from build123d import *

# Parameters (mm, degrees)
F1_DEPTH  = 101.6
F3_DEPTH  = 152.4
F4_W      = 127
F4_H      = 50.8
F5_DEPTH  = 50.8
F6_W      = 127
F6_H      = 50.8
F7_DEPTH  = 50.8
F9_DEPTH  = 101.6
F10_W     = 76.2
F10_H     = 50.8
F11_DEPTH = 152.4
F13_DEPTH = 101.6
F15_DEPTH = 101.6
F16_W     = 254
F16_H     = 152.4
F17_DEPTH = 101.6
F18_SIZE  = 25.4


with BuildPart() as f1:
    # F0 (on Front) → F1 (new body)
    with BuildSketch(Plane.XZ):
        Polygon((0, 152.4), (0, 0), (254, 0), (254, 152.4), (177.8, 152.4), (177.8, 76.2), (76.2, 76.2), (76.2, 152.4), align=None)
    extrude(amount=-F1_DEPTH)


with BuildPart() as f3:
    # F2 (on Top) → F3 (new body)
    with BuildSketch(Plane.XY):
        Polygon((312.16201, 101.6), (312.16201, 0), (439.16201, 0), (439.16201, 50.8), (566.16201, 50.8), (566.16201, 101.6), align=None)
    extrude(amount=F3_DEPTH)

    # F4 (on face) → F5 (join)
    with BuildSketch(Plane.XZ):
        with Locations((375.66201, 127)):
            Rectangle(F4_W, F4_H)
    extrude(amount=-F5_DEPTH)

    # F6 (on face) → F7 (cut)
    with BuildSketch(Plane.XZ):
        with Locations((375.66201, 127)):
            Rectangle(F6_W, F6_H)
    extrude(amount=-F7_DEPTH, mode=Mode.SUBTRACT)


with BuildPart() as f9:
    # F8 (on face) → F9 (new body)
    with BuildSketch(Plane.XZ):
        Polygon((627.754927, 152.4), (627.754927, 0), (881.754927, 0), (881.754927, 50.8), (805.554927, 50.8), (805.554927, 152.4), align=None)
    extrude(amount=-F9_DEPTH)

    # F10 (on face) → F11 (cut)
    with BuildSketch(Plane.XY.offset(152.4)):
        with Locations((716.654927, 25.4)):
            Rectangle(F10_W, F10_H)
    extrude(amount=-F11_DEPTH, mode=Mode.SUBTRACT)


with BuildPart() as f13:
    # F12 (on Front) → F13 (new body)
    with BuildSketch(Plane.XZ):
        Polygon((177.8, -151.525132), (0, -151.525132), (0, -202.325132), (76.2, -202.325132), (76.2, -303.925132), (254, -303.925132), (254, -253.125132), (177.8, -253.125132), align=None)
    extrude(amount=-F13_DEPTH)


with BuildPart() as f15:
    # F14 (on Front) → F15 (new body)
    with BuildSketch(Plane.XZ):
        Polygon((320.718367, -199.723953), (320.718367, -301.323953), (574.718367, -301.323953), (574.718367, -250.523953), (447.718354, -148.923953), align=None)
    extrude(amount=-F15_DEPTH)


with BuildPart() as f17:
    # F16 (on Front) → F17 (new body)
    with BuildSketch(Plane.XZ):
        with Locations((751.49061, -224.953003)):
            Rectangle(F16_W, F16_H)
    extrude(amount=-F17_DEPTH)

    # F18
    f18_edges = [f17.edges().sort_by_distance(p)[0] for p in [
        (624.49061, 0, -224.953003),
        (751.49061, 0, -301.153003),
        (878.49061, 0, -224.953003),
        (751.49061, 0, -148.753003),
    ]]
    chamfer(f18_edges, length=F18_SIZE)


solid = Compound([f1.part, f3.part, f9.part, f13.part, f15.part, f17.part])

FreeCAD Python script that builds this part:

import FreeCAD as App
import Part
import Sketcher

V = App.Vector
Q = App.Units.Quantity


def edges_at(feature, points):
    """Names of the edges that pass closest to the given points."""
    edges = feature.Shape.Edges
    near = lambda p: min(range(len(edges)), key=lambda i: edges[i].distToShape(Part.Vertex(*p))[0])
    return sorted({f"Edge{near(p) + 1}" for p in points})

doc = App.newDocument("Part")
body = doc.addObject("PartDesign::Body", "Body")

# Sketch on XZ plane
sketch1 = doc.addObject("Sketcher::SketchObject", "Sketch")
body.addObject(sketch1)
sketch1.AttachmentSupport = (doc.XZ_Plane, [""])
sketch1.MapMode = "FlatFace"
sketch1.addGeometry([
    Part.LineSegment(V(0, 152.4, 0), V(0, 0, 0)),  # 0
    Part.LineSegment(V(0, 0, 0), V(254, 0, 0)),  # 1
    Part.LineSegment(V(254, 0, 0), V(254, 152.4, 0)),  # 2
    Part.LineSegment(V(254, 152.4, 0), V(177.8, 152.4, 0)),  # 3
    Part.LineSegment(V(177.8, 152.4, 0), V(177.8, 76.2, 0)),  # 4
    Part.LineSegment(V(177.8, 76.2, 0), V(76.2, 76.2, 0)),  # 5
    Part.LineSegment(V(76.2, 76.2, 0), V(76.2, 152.4, 0)),  # 6
    Part.LineSegment(V(76.2, 152.4, 0), V(0, 152.4, 0)),  # 7
], False)
sketch1.addConstraint([
    Sketcher.Constraint("Coincident", 0, 2, 1, 1),
    Sketcher.Constraint("Coincident", 1, 2, 2, 1),
    Sketcher.Constraint("Coincident", 2, 2, 3, 1),
    Sketcher.Constraint("Coincident", 3, 2, 4, 1),
    Sketcher.Constraint("Coincident", 4, 2, 5, 1),
    Sketcher.Constraint("Coincident", 5, 2, 6, 1),
    Sketcher.Constraint("Coincident", 6, 2, 7, 1),
    Sketcher.Constraint("Coincident", 7, 2, 0, 1),
    Sketcher.Constraint("Vertical", 0),
    Sketcher.Constraint("Horizontal", 1),
    Sketcher.Constraint("Vertical", 2),
    Sketcher.Constraint("Horizontal", 3),
    Sketcher.Constraint("Vertical", 4),
    Sketcher.Constraint("Horizontal", 5),
    Sketcher.Constraint("Vertical", 6),
    Sketcher.Constraint("Horizontal", 7),
    Sketcher.Constraint("Coincident", 0, 2, -1, 1),
    Sketcher.Constraint("Horizontal", 3, 2, 6, 2),
    Sketcher.Constraint("Equal", 3, 7),
    Sketcher.Constraint("Equal", 7, 4),
    Sketcher.Constraint("DistanceX", 1, 1, 1, 2, Q("10 in")),
    Sketcher.Constraint("DistanceX", 3, 2, 3, 1, Q("3 in")),
    Sketcher.Constraint("DistanceY", 0, 2, 0, 1, Q("6 in")),
])
pad1 = doc.addObject("PartDesign::Pad", "Pad")
body.addObject(pad1)
pad1.Profile = sketch1
pad1.Length = Q("4 in")
pad1.Reversed = True
body2 = doc.addObject("PartDesign::Body", "Body001")

# Sketch on XY plane
sketch2 = doc.addObject("Sketcher::SketchObject", "Sketch001")
body2.addObject(sketch2)
sketch2.AttachmentSupport = (doc.getObject("XY_Plane001"), [""])
sketch2.MapMode = "FlatFace"
sketch2.addGeometry([
    Part.LineSegment(V(312.16201, 101.6, 0), V(312.16201, 0, 0)),  # 0
    Part.LineSegment(V(312.16201, 0, 0), V(439.16201, 0, 0)),  # 1
    Part.LineSegment(V(439.16201, 0, 0), V(439.16201, 50.8, 0)),  # 2
    Part.LineSegment(V(439.16201, 50.8, 0), V(566.16201, 50.8, 0)),  # 3
    Part.LineSegment(V(566.16201, 50.8, 0), V(566.16201, 101.6, 0)),  # 4
    Part.LineSegment(V(566.16201, 101.6, 0), V(312.16201, 101.6, 0)),  # 5
], False)
sketch2.addConstraint([
    Sketcher.Constraint("Coincident", 0, 2, 1, 1),
    Sketcher.Constraint("Coincident", 1, 2, 2, 1),
    Sketcher.Constraint("Coincident", 2, 2, 3, 1),
    Sketcher.Constraint("Coincident", 3, 2, 4, 1),
    Sketcher.Constraint("Coincident", 4, 2, 5, 1),
    Sketcher.Constraint("Coincident", 5, 2, 0, 1),
    Sketcher.Constraint("Vertical", 0),
    Sketcher.Constraint("Horizontal", 1),
    Sketcher.Constraint("Vertical", 2),
    Sketcher.Constraint("Horizontal", 3),
    Sketcher.Constraint("Vertical", 4),
    Sketcher.Constraint("Horizontal", 5),
    Sketcher.Constraint("PointOnObject", 0, 2, -1),
    Sketcher.Constraint("Equal", 1, 3),
    Sketcher.Constraint("Equal", 2, 4),
    Sketcher.Constraint("DistanceX", 1, 1, 1, 2, Q("5 in")),
    Sketcher.Constraint("DistanceY", 0, 2, 0, 1, Q("4 in")),
    Sketcher.Constraint("DistanceX", -1, 1, 0, 2, Q("312.16201 mm")),
])
pad2 = doc.addObject("PartDesign::Pad", "Pad001")
body2.addObject(pad2)
pad2.Profile = sketch2
pad2.Length = Q("6 in")

# Sketch on XZ plane
sketch3 = doc.addObject("Sketcher::SketchObject", "Sketch002")
body2.addObject(sketch3)
sketch3.AttachmentSupport = (doc.getObject("XZ_Plane001"), [""])
sketch3.MapMode = "FlatFace"
sketch3.addGeometry([
    Part.LineSegment(V(312.16201, 152.4, 0), V(312.16201, 101.6, 0)),
    Part.LineSegment(V(312.16201, 101.6, 0), V(439.16201, 101.6, 0)),
    Part.LineSegment(V(439.16201, 101.6, 0), V(439.16201, 152.4, 0)),
    Part.LineSegment(V(439.16201, 152.4, 0), V(312.16201, 152.4, 0)),
], False)
sketch3.addConstraint([
    Sketcher.Constraint("Coincident", 0, 2, 1, 1),
    Sketcher.Constraint("Coincident", 1, 2, 2, 1),
    Sketcher.Constraint("Coincident", 2, 2, 3, 1),
    Sketcher.Constraint("Coincident", 3, 2, 0, 1),
    Sketcher.Constraint("Vertical", 0),
    Sketcher.Constraint("Horizontal", 1),
    Sketcher.Constraint("Vertical", 2),
    Sketcher.Constraint("Horizontal", 3),
    Sketcher.Constraint("DistanceX", 1, 1, 1, 2, Q("5 in")),
    Sketcher.Constraint("DistanceY", 0, 2, 0, 1, Q("2 in")),
    Sketcher.Constraint("DistanceY", -1, 1, 0, 2, Q("4 in")),
    Sketcher.Constraint("DistanceX", -1, 1, 0, 2, Q("312.16201 mm")),
])
pad3 = doc.addObject("PartDesign::Pad", "Pad002")
body2.addObject(pad3)
pad3.Profile = sketch3
pad3.Length = Q("2 in")
pad3.Reversed = True

# Sketch on XZ plane
sketch4 = doc.addObject("Sketcher::SketchObject", "Sketch003")
body2.addObject(sketch4)
sketch4.AttachmentSupport = (doc.getObject("XZ_Plane001"), [""])
sketch4.MapMode = "FlatFace"
sketch4.addGeometry([
    Part.LineSegment(V(312.16201, 152.4, 0), V(312.16201, 101.6, 0)),
    Part.LineSegment(V(312.16201, 101.6, 0), V(439.16201, 101.6, 0)),
    Part.LineSegment(V(439.16201, 101.6, 0), V(439.16201, 152.4, 0)),
    Part.LineSegment(V(439.16201, 152.4, 0), V(312.16201, 152.4, 0)),
], False)
sketch4.addConstraint([
    Sketcher.Constraint("Coincident", 0, 2, 1, 1),
    Sketcher.Constraint("Coincident", 1, 2, 2, 1),
    Sketcher.Constraint("Coincident", 2, 2, 3, 1),
    Sketcher.Constraint("Coincident", 3, 2, 0, 1),
    Sketcher.Constraint("Vertical", 0),
    Sketcher.Constraint("Horizontal", 1),
    Sketcher.Constraint("Vertical", 2),
    Sketcher.Constraint("Horizontal", 3),
    Sketcher.Constraint("DistanceX", 1, 1, 1, 2, Q("5 in")),
    Sketcher.Constraint("DistanceY", 0, 2, 0, 1, Q("2 in")),
    Sketcher.Constraint("DistanceY", -1, 1, 0, 2, Q("4 in")),
    Sketcher.Constraint("DistanceX", -1, 1, 0, 2, Q("312.16201 mm")),
])
pocket1 = doc.addObject("PartDesign::Pocket", "Pocket")
body2.addObject(pocket1)
pocket1.Profile = sketch4
pocket1.Length = Q("2 in")
body3 = doc.addObject("PartDesign::Body", "Body002")

# Sketch on XZ plane
sketch5 = doc.addObject("Sketcher::SketchObject", "Sketch004")
body3.addObject(sketch5)
sketch5.AttachmentSupport = (doc.getObject("XZ_Plane002"), [""])
sketch5.MapMode = "FlatFace"
sketch5.addGeometry([
    Part.LineSegment(V(627.754927, 152.4, 0), V(627.754927, 0, 0)),  # 0
    Part.LineSegment(V(627.754927, 0, 0), V(881.754927, 0, 0)),  # 1
    Part.LineSegment(V(881.754927, 0, 0), V(881.754927, 50.8, 0)),  # 2
    Part.LineSegment(V(881.754927, 50.8, 0), V(805.554927, 50.8, 0)),  # 3
    Part.LineSegment(V(805.554927, 50.8, 0), V(805.554927, 152.4, 0)),  # 4
    Part.LineSegment(V(805.554927, 152.4, 0), V(627.754927, 152.4, 0)),  # 5
], False)
sketch5.addConstraint([
    Sketcher.Constraint("Coincident", 0, 2, 1, 1),
    Sketcher.Constraint("Coincident", 1, 2, 2, 1),
    Sketcher.Constraint("Coincident", 2, 2, 3, 1),
    Sketcher.Constraint("Coincident", 3, 2, 4, 1),
    Sketcher.Constraint("Coincident", 4, 2, 5, 1),
    Sketcher.Constraint("Coincident", 5, 2, 0, 1),
    Sketcher.Constraint("Vertical", 0),
    Sketcher.Constraint("Horizontal", 1),
    Sketcher.Constraint("Vertical", 2),
    Sketcher.Constraint("Horizontal", 3),
    Sketcher.Constraint("Vertical", 4),
    Sketcher.Constraint("Horizontal", 5),
    Sketcher.Constraint("PointOnObject", 0, 2, -1),
    Sketcher.Constraint("DistanceX", 1, 1, 1, 2, Q("10 in")),
    Sketcher.Constraint("DistanceX", 3, 2, 3, 1, Q("3 in")),
    Sketcher.Constraint("DistanceY", 0, 2, 0, 1, Q("6 in")),
    Sketcher.Constraint("DistanceY", 2, 1, 2, 2, Q("2 in")),
    Sketcher.Constraint("DistanceX", -1, 1, 0, 2, Q("627.754927 mm")),
])
pad4 = doc.addObject("PartDesign::Pad", "Pad003")
body3.addObject(pad4)
pad4.Profile = sketch5
pad4.Length = Q("4 in")
pad4.Reversed = True

# Sketch on XY plane
sketch6 = doc.addObject("Sketcher::SketchObject", "Sketch005")
body3.addObject(sketch6)
sketch6.AttachmentSupport = (doc.getObject("XY_Plane002"), [""])
sketch6.MapMode = "FlatFace"
sketch6.AttachmentOffset = App.Placement(V(0, 0, 6 * 25.4), App.Rotation())
sketch6.addGeometry([
    Part.LineSegment(V(678.554927, 50.8, 0), V(678.554927, 0, 0)),
    Part.LineSegment(V(678.554927, 0, 0), V(754.754927, 0, 0)),
    Part.LineSegment(V(754.754927, 0, 0), V(754.754927, 50.8, 0)),
    Part.LineSegment(V(754.754927, 50.8, 0), V(678.554927, 50.8, 0)),
], False)
sketch6.addConstraint([
    Sketcher.Constraint("Coincident", 0, 2, 1, 1),
    Sketcher.Constraint("Coincident", 1, 2, 2, 1),
    Sketcher.Constraint("Coincident", 2, 2, 3, 1),
    Sketcher.Constraint("Coincident", 3, 2, 0, 1),
    Sketcher.Constraint("Vertical", 0),
    Sketcher.Constraint("Horizontal", 1),
    Sketcher.Constraint("Vertical", 2),
    Sketcher.Constraint("Horizontal", 3),
    Sketcher.Constraint("PointOnObject", 0, 2, -1),
    Sketcher.Constraint("DistanceX", 1, 1, 1, 2, Q("3 in")),
    Sketcher.Constraint("DistanceY", 0, 2, 0, 1, Q("2 in")),
    Sketcher.Constraint("DistanceX", -1, 1, 0, 2, Q("678.554927 mm")),
])
pocket2 = doc.addObject("PartDesign::Pocket", "Pocket001")
body3.addObject(pocket2)
pocket2.Profile = sketch6
pocket2.Length = Q("6 in")
body4 = doc.addObject("PartDesign::Body", "Body003")

# Sketch on XZ plane
sketch7 = doc.addObject("Sketcher::SketchObject", "Sketch006")
body4.addObject(sketch7)
sketch7.AttachmentSupport = (doc.getObject("XZ_Plane003"), [""])
sketch7.MapMode = "FlatFace"
sketch7.addGeometry([
    Part.LineSegment(V(177.8, -151.525132, 0), V(0, -151.525132, 0)),  # 0
    Part.LineSegment(V(0, -151.525132, 0), V(0, -202.325132, 0)),  # 1
    Part.LineSegment(V(0, -202.325132, 0), V(76.2, -202.325132, 0)),  # 2
    Part.LineSegment(V(76.2, -202.325132, 0), V(76.2, -303.925132, 0)),  # 3
    Part.LineSegment(V(76.2, -303.925132, 0), V(254, -303.925132, 0)),  # 4
    Part.LineSegment(V(254, -303.925132, 0), V(254, -253.125132, 0)),  # 5
    Part.LineSegment(V(254, -253.125132, 0), V(177.8, -253.125132, 0)),  # 6
    Part.LineSegment(V(177.8, -253.125132, 0), V(177.8, -151.525132, 0)),  # 7
], False)
sketch7.addConstraint([
    Sketcher.Constraint("Coincident", 0, 2, 1, 1),
    Sketcher.Constraint("Coincident", 1, 2, 2, 1),
    Sketcher.Constraint("Coincident", 2, 2, 3, 1),
    Sketcher.Constraint("Coincident", 3, 2, 4, 1),
    Sketcher.Constraint("Coincident", 4, 2, 5, 1),
    Sketcher.Constraint("Coincident", 5, 2, 6, 1),
    Sketcher.Constraint("Coincident", 6, 2, 7, 1),
    Sketcher.Constraint("Coincident", 7, 2, 0, 1),
    Sketcher.Constraint("Horizontal", 0),
    Sketcher.Constraint("Vertical", 1),
    Sketcher.Constraint("Horizontal", 2),
    Sketcher.Constraint("Vertical", 3),
    Sketcher.Constraint("Horizontal", 4),
    Sketcher.Constraint("Vertical", 5),
    Sketcher.Constraint("Horizontal", 6),
    Sketcher.Constraint("Vertical", 7),
    Sketcher.Constraint("PointOnObject", 0, 2, -2),
    Sketcher.Constraint("Equal", 0, 4),
    Sketcher.Constraint("Equal", 1, 5),
    Sketcher.Constraint("DistanceX", 0, 2, 0, 1, Q("7 in")),
    Sketcher.Constraint("DistanceX", 2, 1, 2, 2, Q("3 in")),
    Sketcher.Constraint("DistanceY", 1, 2, 1, 1, Q("2 in")),
    Sketcher.Constraint("DistanceY", 3, 2, 3, 1, Q("4 in")),
    Sketcher.Constraint("DistanceY", 1, 2, -1, 1, Q("202.325132 mm")),
])
pad5 = doc.addObject("PartDesign::Pad", "Pad004")
body4.addObject(pad5)
pad5.Profile = sketch7
pad5.Length = Q("4 in")
pad5.Reversed = True
body5 = doc.addObject("PartDesign::Body", "Body004")

# Sketch on XZ plane
sketch8 = doc.addObject("Sketcher::SketchObject", "Sketch007")
body5.addObject(sketch8)
sketch8.AttachmentSupport = (doc.getObject("XZ_Plane004"), [""])
sketch8.MapMode = "FlatFace"
sketch8.addGeometry([
    Part.LineSegment(V(320.718367, -199.723953, 0), V(320.718367, -301.323953, 0)),  # 0
    Part.LineSegment(V(320.718367, -301.323953, 0), V(574.718367, -301.323953, 0)),  # 1
    Part.LineSegment(V(574.718367, -301.323953, 0), V(574.718367, -250.523953, 0)),  # 2
    Part.LineSegment(V(574.718367, -250.523953, 0), V(447.718354, -148.923953, 0)),  # 3
    Part.LineSegment(V(447.718354, -148.923953, 0), V(320.718367, -199.723953, 0)),  # 4
], False)
sketch8.addConstraint([
    Sketcher.Constraint("Coincident", 0, 2, 1, 1),
    Sketcher.Constraint("Coincident", 1, 2, 2, 1),
    Sketcher.Constraint("Coincident", 2, 2, 3, 1),
    Sketcher.Constraint("Coincident", 3, 2, 4, 1),
    Sketcher.Constraint("Coincident", 4, 2, 0, 1),
    Sketcher.Constraint("Vertical", 0),
    Sketcher.Constraint("Horizontal", 1),
    Sketcher.Constraint("Vertical", 2),
    Sketcher.Constraint("DistanceX", 1, 1, 1, 2, Q("10 in")),
    Sketcher.Constraint("DistanceY", 0, 2, 0, 1, Q("4 in")),
    Sketcher.Constraint("DistanceY", 2, 1, 2, 2, Q("2 in")),
    Sketcher.Constraint("DistanceY", 2, 2, 3, 2, Q("4 in")),
    Sketcher.Constraint("Distance", 3, Q("162.639366 mm")),
    Sketcher.Constraint("DistanceX", -1, 1, 0, 2, Q("320.718367 mm")),
    Sketcher.Constraint("DistanceY", 0, 2, -1, 1, Q("301.323953 mm")),
])
pad6 = doc.addObject("PartDesign::Pad", "Pad005")
body5.addObject(pad6)
pad6.Profile = sketch8
pad6.Length = Q("4 in")
pad6.Reversed = True
body6 = doc.addObject("PartDesign::Body", "Body005")

# Sketch on XZ plane
sketch9 = doc.addObject("Sketcher::SketchObject", "Sketch008")
body6.addObject(sketch9)
sketch9.AttachmentSupport = (doc.getObject("XZ_Plane005"), [""])
sketch9.MapMode = "FlatFace"
sketch9.addGeometry([
    Part.LineSegment(V(624.49061, -148.753003, 0), V(624.49061, -301.153003, 0)),
    Part.LineSegment(V(624.49061, -301.153003, 0), V(878.49061, -301.153003, 0)),
    Part.LineSegment(V(878.49061, -301.153003, 0), V(878.49061, -148.753003, 0)),
    Part.LineSegment(V(878.49061, -148.753003, 0), V(624.49061, -148.753003, 0)),
], False)
sketch9.addConstraint([
    Sketcher.Constraint("Coincident", 0, 2, 1, 1),
    Sketcher.Constraint("Coincident", 1, 2, 2, 1),
    Sketcher.Constraint("Coincident", 2, 2, 3, 1),
    Sketcher.Constraint("Coincident", 3, 2, 0, 1),
    Sketcher.Constraint("Vertical", 0),
    Sketcher.Constraint("Horizontal", 1),
    Sketcher.Constraint("Vertical", 2),
    Sketcher.Constraint("Horizontal", 3),
    Sketcher.Constraint("DistanceX", 1, 1, 1, 2, Q("10 in")),
    Sketcher.Constraint("DistanceY", 0, 2, 0, 1, Q("6 in")),
    Sketcher.Constraint("DistanceX", -1, 1, 0, 2, Q("624.49061 mm")),
    Sketcher.Constraint("DistanceY", 0, 2, -1, 1, Q("301.153003 mm")),
])
pad7 = doc.addObject("PartDesign::Pad", "Pad006")
body6.addObject(pad7)
pad7.Profile = sketch9
pad7.Length = Q("4 in")
pad7.Reversed = True
doc.recompute()

chamfer = doc.addObject("PartDesign::Chamfer", "Chamfer")
body6.addObject(chamfer)
chamfer.Base = (pad7, edges_at(pad7, [
    (624.491, 0, -224.953),
    (751.491, 0, -301.153),
    (878.491, 0, -224.953),
    (751.491, 0, -148.753),
]))
chamfer.Size = Q("1 in")

doc.recompute()
